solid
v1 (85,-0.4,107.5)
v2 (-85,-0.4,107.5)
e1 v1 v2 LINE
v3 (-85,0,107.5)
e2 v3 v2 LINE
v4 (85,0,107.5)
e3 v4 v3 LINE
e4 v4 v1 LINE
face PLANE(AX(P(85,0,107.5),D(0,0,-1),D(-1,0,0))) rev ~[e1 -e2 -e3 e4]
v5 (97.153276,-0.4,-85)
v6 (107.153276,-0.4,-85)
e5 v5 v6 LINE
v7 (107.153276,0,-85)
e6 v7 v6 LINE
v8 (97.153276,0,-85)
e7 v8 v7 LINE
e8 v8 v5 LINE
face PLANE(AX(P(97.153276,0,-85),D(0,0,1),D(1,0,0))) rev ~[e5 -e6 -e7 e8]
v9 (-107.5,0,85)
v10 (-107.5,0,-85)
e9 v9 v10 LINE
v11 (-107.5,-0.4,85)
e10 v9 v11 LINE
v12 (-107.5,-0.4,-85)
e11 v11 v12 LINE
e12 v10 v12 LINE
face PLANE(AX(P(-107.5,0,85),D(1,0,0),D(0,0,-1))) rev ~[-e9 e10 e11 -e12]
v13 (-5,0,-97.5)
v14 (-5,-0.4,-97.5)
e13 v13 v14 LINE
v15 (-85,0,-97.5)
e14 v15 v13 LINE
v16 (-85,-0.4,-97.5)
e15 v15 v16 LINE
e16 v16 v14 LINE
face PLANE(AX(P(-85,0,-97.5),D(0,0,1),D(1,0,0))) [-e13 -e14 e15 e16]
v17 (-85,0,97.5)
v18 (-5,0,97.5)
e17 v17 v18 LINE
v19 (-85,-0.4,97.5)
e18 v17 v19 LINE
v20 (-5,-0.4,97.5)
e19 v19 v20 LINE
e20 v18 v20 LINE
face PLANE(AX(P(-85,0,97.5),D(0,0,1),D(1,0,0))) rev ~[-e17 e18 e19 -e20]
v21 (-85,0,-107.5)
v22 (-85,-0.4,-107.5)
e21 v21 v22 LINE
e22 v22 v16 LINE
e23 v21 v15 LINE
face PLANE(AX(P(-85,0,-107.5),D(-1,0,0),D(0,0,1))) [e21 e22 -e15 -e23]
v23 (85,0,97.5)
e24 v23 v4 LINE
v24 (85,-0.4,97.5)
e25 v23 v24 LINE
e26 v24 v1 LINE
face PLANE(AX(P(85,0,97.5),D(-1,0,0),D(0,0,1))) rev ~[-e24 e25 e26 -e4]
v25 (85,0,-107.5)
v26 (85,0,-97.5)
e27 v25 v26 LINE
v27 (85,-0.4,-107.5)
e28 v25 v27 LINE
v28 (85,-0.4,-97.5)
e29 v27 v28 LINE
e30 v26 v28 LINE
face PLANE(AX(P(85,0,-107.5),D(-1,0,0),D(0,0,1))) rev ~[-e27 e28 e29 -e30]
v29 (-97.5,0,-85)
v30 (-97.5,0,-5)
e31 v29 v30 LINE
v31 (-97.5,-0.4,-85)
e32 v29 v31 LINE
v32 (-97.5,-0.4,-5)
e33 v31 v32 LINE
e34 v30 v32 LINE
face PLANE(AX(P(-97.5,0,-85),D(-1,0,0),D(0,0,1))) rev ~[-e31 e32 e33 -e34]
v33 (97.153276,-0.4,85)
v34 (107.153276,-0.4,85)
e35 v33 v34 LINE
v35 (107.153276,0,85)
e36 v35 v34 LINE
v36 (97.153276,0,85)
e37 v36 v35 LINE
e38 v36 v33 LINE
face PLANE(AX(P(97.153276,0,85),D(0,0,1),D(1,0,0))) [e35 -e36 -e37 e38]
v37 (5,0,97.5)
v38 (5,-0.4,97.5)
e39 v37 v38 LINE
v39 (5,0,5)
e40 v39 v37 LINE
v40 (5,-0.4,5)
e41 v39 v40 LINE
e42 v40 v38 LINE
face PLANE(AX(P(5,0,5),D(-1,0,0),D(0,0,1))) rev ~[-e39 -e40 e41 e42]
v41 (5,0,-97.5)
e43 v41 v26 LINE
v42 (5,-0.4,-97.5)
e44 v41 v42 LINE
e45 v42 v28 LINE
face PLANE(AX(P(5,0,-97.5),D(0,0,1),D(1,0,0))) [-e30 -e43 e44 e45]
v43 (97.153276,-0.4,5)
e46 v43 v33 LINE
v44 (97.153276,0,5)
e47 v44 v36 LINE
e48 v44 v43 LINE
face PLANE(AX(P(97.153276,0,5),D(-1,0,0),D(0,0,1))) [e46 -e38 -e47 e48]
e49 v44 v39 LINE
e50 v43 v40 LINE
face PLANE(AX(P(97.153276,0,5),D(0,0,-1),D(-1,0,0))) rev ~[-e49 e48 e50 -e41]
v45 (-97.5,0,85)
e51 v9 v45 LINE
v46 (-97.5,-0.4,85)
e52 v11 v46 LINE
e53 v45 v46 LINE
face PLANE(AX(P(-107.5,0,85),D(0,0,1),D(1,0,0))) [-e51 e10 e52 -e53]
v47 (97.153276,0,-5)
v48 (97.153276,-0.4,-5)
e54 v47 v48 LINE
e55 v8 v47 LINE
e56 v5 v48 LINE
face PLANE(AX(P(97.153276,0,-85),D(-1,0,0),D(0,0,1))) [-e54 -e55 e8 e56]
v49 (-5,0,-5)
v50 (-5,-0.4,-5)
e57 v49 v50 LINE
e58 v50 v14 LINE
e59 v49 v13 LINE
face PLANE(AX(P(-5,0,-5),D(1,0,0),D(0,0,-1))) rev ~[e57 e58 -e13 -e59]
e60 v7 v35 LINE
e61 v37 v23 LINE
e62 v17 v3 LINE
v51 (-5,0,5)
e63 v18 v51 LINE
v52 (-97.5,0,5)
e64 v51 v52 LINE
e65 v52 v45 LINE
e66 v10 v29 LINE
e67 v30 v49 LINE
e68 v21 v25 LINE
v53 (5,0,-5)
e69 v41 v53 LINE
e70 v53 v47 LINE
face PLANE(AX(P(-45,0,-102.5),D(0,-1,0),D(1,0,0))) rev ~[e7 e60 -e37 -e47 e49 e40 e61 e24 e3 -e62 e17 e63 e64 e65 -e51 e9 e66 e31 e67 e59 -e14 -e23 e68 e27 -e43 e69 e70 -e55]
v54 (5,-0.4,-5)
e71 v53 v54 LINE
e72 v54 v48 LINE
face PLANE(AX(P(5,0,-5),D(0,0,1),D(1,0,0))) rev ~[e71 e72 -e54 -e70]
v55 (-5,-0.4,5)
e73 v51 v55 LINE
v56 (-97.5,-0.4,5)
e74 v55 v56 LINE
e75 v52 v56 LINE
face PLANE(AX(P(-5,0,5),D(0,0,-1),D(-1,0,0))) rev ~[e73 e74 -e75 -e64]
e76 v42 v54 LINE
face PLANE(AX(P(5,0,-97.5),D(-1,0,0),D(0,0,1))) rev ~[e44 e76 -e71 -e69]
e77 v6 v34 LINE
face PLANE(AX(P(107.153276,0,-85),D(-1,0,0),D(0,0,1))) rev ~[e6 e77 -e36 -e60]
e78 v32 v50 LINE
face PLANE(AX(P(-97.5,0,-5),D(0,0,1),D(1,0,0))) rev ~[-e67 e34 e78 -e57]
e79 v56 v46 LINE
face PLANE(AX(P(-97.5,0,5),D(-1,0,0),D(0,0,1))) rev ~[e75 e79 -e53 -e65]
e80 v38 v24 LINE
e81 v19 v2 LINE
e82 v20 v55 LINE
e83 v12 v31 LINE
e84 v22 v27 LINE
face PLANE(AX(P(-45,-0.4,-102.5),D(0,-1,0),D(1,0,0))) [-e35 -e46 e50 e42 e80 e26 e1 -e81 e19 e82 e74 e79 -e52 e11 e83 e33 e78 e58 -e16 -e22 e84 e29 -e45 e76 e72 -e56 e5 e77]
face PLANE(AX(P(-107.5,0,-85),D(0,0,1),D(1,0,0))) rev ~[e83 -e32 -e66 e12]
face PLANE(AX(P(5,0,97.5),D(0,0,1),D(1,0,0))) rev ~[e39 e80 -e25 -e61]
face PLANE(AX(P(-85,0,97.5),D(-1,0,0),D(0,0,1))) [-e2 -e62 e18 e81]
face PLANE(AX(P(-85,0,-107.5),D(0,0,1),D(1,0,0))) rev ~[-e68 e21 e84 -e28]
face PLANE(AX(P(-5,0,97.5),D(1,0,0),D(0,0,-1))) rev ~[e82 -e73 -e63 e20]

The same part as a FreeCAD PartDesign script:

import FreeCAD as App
import Part
import Sketcher
from FreeCAD import Vector

doc = App.newDocument("Part")
body = doc.addObject("PartDesign::Body", "Body")

sketch1 = doc.addObject("Sketcher::SketchObject", "Sketch")
body.addObject(sketch1)
sketch1.AttachmentSupport = (doc.XZ_Plane, [""])
sketch1.MapMode = "FlatFace"
sketch1.addGeometry([
    Part.LineSegment(Vector(-85, -97.5, 0), Vector(-85, -107.5, 0)),
    Part.LineSegment(Vector(-85, -107.5, 0), Vector(85, -107.5, 0)),
    Part.LineSegment(Vector(85, -107.5, 0), Vector(85, -97.5, 0)),
    Part.LineSegment(Vector(85, -97.5, 0), Vector(5, -97.5, 0)),
    Part.LineSegment(Vector(5, -97.5, 0), Vector(5, -5, 0)),
    Part.LineSegment(Vector(5, -5, 0), Vector(97.153276, -5, 0)),
    Part.LineSegment(Vector(97.153276, -5, 0), Vector(97.153276, -85, 0)),
    Part.LineSegment(Vector(97.153276, -85, 0), Vector(107.153276, -85, 0)),
    Part.LineSegment(Vector(107.153276, -85, 0), Vector(107.153276, 85, 0)),
    Part.LineSegment(Vector(107.153276, 85, 0), Vector(97.153276, 85, 0)),
    Part.LineSegment(Vector(97.153276, 85, 0), Vector(97.153276, 5, 0)),
    Part.LineSegment(Vector(97.153276, 5, 0), Vector(5, 5, 0)),
    Part.LineSegment(Vector(5, 5, 0), Vector(5, 97.5, 0)),
    Part.LineSegment(Vector(5, 97.5, 0), Vector(85, 97.5, 0)),
    Part.LineSegment(Vector(85, 97.5, 0), Vector(85, 107.5, 0)),
    Part.LineSegment(Vector(85, 107.5, 0), Vector(-85, 107.5, 0)),
    Part.LineSegment(Vector(-85, 107.5, 0), Vector(-85, 97.5, 0)),
    Part.LineSegment(Vector(-85, 97.5, 0), Vector(-5, 97.5, 0)),
    Part.LineSegment(Vector(-5, 97.5, 0), Vector(-5, 5, 0)),
    Part.LineSegment(Vector(-5, 5, 0), Vector(-97.5, 5, 0)),
    Part.LineSegment(Vector(-97.5, 5, 0), Vector(-97.5, 85, 0)),
    Part.LineSegment(Vector(-97.5, 85, 0), Vector(-107.5, 85, 0)),
    Part.LineSegment(Vector(-107.5, 85, 0), Vector(-107.5, -85, 0)),
    Part.LineSegment(Vector(-107.5, -85, 0), Vector(-97.5, -85, 0)),
    Part.LineSegment(Vector(-97.5, -85, 0), Vector(-97.5, -5, 0)),
    Part.LineSegment(Vector(-97.5, -5, 0), Vector(-5, -5, 0)),
    Part.LineSegment(Vector(-5, -5, 0), Vector(-5, -97.5, 0)),
    Part.LineSegment(Vector(-5, -97.5, 0), Vector(-85, -97.5, 0)),
], False)
sketch1.addConstraint([
    Sketcher.Constraint("Coincident", 0, 2, 1, 1),
    Sketcher.Constraint("Coincident", 1, 2, 2, 1),
    Sketcher.Constraint("Coincident", 2, 2, 3, 1),
    Sketcher.Constraint("Coincident", 3, 2, 4, 1),
    Sketcher.Constraint("Coincident", 4, 2, 5, 1),
    Sketcher.Constraint("Coincident", 5, 2, 6, 1),
    Sketcher.Constraint("Coincident", 6, 2, 7, 1),
    Sketcher.Constraint("Coincident", 7, 2, 8, 1),
    Sketcher.Constraint("Coincident", 8, 2, 9, 1),
    Sketcher.Constraint("Coincident", 9, 2, 10, 1),
    Sketcher.Constraint("Coincident", 10, 2, 11, 1),
    Sketcher.Constraint("Coincident", 11, 2, 12, 1),
    Sketcher.Constraint("Coincident", 12, 2, 13, 1),
    Sketcher.Constraint("Coincident", 13, 2, 14, 1),
    Sketcher.Constraint("Coincident", 14, 2, 15, 1),
    Sketcher.Constraint("Coincident", 15, 2, 16, 1),
    Sketcher.Constraint("Coincident", 16, 2, 17, 1),
    Sketcher.Constraint("Coincident", 17, 2, 18, 1),
    Sketcher.Constraint("Coincident", 18, 2, 19, 1),
    Sketcher.Constraint("Coincident", 19, 2, 20, 1),
    Sketcher.Constraint("Coincident", 20, 2, 21, 1),
    Sketcher.Constraint("Coincident", 21, 2, 22, 1),
    Sketcher.Constraint("Coincident", 22, 2, 23, 1),
    Sketcher.Constraint("Coincident", 23, 2, 24, 1),
    Sketcher.Constraint("Coincident", 24, 2, 25, 1),
    Sketcher.Constraint("Coincident", 25, 2, 26, 1),
    Sketcher.Constraint("Coincident", 26, 2, 27, 1),
    Sketcher.Constraint("Coincident", 27, 2, 0, 1),
    Sketcher.Constraint("Vertical", 0),
    Sketcher.Constraint("Horizontal", 1),
    Sketcher.Constraint("Vertical", 2),
    Sketcher.Constraint("Horizontal", 3),
    Sketcher.Constraint("Vertical", 4),
    Sketcher.Constraint("Horizontal", 5),
    Sketcher.Constraint("Vertical", 6),
    Sketcher.Constraint("Horizontal", 7),
    Sketcher.Constraint("Vertical", 8),
    Sketcher.Constraint("Horizontal", 9),
    Sketcher.Constraint("Vertical", 10),
    Sketcher.Constraint("Horizontal", 11),
    Sketcher.Constraint("Vertical", 12),
    Sketcher.Constraint("Horizontal", 13),
    Sketcher.Constraint("Vertical", 14),
    Sketcher.Constraint("Horizontal", 15),
    Sketcher.Constraint("Vertical", 16),
    Sketcher.Constraint("Horizontal", 17),
    Sketcher.Constraint("Vertical", 18),
    Sketcher.Constraint("Horizontal", 19),
    Sketcher.Constraint("Vertical", 20),
    Sketcher.Constraint("Horizontal", 21),
    Sketcher.Constraint("Vertical", 22),
    Sketcher.Constraint("Horizontal", 23),
    Sketcher.Constraint("Vertical", 24),
    Sketcher.Constraint("Horizontal", 25),
    Sketcher.Constraint("Vertical", 26),
    Sketcher.Constraint("Horizontal", 27),
    Sketcher.Constraint("Symmetric", 0, 2, 14, 2, -1, 1),
    Sketcher.Constraint("Symmetric", 2, 2, 16, 2, -1, 1),
    Sketcher.Constraint("Symmetric", 4, 2, 18, 2, -1, 1),
    Sketcher.Constraint("Symmetric", 11, 2, 25, 2, -1, 1),
    Sketcher.Constraint("Symmetric", 13, 2, 16, 2, -2),
    Sketcher.Constraint("Symmetric", 11, 2, 18, 2, -2),
    Sketcher.Constraint("Symmetric", 6, 2, 9, 2, -1),
    Sketcher.Constraint("Symmetric", 20, 2, 23, 2, -1),
    Sketcher.Constraint("Horizontal", 9, 2, 20, 2),
    Sketcher.Constraint("Horizontal", 3, 2, 26, 2),
    Sketcher.Constraint("Equal", 9, 21),
    Sketcher.Constraint("Equal", 23, 0),
    Sketcher.Constraint("Equal", 25, 4),
    Sketcher.Constraint("Equal", 27, 6),
    Sketcher.Constraint("Equal", 15, 8),
    Sketcher.Constraint("DistanceX", 1, 1, 1, 2, 170.0),
    Sketcher.Constraint("DistanceX", 3, 2, 3, 1, 80.0),
    Sketcher.Constraint("DistanceX", 7, 1, 7, 2, 10.0),
    Sketcher.Constraint("DistanceX", 19, 2, 19, 1, 92.5),
    Sketcher.Constraint("DistanceX", 5, 1, 5, 2, 92.153276),
])
pad1 = doc.addObject("PartDesign::Pad", "Pad")
body.addObject(pad1)
pad1.Profile = sketch1
pad1.Length = 0.4

doc.recompute()
